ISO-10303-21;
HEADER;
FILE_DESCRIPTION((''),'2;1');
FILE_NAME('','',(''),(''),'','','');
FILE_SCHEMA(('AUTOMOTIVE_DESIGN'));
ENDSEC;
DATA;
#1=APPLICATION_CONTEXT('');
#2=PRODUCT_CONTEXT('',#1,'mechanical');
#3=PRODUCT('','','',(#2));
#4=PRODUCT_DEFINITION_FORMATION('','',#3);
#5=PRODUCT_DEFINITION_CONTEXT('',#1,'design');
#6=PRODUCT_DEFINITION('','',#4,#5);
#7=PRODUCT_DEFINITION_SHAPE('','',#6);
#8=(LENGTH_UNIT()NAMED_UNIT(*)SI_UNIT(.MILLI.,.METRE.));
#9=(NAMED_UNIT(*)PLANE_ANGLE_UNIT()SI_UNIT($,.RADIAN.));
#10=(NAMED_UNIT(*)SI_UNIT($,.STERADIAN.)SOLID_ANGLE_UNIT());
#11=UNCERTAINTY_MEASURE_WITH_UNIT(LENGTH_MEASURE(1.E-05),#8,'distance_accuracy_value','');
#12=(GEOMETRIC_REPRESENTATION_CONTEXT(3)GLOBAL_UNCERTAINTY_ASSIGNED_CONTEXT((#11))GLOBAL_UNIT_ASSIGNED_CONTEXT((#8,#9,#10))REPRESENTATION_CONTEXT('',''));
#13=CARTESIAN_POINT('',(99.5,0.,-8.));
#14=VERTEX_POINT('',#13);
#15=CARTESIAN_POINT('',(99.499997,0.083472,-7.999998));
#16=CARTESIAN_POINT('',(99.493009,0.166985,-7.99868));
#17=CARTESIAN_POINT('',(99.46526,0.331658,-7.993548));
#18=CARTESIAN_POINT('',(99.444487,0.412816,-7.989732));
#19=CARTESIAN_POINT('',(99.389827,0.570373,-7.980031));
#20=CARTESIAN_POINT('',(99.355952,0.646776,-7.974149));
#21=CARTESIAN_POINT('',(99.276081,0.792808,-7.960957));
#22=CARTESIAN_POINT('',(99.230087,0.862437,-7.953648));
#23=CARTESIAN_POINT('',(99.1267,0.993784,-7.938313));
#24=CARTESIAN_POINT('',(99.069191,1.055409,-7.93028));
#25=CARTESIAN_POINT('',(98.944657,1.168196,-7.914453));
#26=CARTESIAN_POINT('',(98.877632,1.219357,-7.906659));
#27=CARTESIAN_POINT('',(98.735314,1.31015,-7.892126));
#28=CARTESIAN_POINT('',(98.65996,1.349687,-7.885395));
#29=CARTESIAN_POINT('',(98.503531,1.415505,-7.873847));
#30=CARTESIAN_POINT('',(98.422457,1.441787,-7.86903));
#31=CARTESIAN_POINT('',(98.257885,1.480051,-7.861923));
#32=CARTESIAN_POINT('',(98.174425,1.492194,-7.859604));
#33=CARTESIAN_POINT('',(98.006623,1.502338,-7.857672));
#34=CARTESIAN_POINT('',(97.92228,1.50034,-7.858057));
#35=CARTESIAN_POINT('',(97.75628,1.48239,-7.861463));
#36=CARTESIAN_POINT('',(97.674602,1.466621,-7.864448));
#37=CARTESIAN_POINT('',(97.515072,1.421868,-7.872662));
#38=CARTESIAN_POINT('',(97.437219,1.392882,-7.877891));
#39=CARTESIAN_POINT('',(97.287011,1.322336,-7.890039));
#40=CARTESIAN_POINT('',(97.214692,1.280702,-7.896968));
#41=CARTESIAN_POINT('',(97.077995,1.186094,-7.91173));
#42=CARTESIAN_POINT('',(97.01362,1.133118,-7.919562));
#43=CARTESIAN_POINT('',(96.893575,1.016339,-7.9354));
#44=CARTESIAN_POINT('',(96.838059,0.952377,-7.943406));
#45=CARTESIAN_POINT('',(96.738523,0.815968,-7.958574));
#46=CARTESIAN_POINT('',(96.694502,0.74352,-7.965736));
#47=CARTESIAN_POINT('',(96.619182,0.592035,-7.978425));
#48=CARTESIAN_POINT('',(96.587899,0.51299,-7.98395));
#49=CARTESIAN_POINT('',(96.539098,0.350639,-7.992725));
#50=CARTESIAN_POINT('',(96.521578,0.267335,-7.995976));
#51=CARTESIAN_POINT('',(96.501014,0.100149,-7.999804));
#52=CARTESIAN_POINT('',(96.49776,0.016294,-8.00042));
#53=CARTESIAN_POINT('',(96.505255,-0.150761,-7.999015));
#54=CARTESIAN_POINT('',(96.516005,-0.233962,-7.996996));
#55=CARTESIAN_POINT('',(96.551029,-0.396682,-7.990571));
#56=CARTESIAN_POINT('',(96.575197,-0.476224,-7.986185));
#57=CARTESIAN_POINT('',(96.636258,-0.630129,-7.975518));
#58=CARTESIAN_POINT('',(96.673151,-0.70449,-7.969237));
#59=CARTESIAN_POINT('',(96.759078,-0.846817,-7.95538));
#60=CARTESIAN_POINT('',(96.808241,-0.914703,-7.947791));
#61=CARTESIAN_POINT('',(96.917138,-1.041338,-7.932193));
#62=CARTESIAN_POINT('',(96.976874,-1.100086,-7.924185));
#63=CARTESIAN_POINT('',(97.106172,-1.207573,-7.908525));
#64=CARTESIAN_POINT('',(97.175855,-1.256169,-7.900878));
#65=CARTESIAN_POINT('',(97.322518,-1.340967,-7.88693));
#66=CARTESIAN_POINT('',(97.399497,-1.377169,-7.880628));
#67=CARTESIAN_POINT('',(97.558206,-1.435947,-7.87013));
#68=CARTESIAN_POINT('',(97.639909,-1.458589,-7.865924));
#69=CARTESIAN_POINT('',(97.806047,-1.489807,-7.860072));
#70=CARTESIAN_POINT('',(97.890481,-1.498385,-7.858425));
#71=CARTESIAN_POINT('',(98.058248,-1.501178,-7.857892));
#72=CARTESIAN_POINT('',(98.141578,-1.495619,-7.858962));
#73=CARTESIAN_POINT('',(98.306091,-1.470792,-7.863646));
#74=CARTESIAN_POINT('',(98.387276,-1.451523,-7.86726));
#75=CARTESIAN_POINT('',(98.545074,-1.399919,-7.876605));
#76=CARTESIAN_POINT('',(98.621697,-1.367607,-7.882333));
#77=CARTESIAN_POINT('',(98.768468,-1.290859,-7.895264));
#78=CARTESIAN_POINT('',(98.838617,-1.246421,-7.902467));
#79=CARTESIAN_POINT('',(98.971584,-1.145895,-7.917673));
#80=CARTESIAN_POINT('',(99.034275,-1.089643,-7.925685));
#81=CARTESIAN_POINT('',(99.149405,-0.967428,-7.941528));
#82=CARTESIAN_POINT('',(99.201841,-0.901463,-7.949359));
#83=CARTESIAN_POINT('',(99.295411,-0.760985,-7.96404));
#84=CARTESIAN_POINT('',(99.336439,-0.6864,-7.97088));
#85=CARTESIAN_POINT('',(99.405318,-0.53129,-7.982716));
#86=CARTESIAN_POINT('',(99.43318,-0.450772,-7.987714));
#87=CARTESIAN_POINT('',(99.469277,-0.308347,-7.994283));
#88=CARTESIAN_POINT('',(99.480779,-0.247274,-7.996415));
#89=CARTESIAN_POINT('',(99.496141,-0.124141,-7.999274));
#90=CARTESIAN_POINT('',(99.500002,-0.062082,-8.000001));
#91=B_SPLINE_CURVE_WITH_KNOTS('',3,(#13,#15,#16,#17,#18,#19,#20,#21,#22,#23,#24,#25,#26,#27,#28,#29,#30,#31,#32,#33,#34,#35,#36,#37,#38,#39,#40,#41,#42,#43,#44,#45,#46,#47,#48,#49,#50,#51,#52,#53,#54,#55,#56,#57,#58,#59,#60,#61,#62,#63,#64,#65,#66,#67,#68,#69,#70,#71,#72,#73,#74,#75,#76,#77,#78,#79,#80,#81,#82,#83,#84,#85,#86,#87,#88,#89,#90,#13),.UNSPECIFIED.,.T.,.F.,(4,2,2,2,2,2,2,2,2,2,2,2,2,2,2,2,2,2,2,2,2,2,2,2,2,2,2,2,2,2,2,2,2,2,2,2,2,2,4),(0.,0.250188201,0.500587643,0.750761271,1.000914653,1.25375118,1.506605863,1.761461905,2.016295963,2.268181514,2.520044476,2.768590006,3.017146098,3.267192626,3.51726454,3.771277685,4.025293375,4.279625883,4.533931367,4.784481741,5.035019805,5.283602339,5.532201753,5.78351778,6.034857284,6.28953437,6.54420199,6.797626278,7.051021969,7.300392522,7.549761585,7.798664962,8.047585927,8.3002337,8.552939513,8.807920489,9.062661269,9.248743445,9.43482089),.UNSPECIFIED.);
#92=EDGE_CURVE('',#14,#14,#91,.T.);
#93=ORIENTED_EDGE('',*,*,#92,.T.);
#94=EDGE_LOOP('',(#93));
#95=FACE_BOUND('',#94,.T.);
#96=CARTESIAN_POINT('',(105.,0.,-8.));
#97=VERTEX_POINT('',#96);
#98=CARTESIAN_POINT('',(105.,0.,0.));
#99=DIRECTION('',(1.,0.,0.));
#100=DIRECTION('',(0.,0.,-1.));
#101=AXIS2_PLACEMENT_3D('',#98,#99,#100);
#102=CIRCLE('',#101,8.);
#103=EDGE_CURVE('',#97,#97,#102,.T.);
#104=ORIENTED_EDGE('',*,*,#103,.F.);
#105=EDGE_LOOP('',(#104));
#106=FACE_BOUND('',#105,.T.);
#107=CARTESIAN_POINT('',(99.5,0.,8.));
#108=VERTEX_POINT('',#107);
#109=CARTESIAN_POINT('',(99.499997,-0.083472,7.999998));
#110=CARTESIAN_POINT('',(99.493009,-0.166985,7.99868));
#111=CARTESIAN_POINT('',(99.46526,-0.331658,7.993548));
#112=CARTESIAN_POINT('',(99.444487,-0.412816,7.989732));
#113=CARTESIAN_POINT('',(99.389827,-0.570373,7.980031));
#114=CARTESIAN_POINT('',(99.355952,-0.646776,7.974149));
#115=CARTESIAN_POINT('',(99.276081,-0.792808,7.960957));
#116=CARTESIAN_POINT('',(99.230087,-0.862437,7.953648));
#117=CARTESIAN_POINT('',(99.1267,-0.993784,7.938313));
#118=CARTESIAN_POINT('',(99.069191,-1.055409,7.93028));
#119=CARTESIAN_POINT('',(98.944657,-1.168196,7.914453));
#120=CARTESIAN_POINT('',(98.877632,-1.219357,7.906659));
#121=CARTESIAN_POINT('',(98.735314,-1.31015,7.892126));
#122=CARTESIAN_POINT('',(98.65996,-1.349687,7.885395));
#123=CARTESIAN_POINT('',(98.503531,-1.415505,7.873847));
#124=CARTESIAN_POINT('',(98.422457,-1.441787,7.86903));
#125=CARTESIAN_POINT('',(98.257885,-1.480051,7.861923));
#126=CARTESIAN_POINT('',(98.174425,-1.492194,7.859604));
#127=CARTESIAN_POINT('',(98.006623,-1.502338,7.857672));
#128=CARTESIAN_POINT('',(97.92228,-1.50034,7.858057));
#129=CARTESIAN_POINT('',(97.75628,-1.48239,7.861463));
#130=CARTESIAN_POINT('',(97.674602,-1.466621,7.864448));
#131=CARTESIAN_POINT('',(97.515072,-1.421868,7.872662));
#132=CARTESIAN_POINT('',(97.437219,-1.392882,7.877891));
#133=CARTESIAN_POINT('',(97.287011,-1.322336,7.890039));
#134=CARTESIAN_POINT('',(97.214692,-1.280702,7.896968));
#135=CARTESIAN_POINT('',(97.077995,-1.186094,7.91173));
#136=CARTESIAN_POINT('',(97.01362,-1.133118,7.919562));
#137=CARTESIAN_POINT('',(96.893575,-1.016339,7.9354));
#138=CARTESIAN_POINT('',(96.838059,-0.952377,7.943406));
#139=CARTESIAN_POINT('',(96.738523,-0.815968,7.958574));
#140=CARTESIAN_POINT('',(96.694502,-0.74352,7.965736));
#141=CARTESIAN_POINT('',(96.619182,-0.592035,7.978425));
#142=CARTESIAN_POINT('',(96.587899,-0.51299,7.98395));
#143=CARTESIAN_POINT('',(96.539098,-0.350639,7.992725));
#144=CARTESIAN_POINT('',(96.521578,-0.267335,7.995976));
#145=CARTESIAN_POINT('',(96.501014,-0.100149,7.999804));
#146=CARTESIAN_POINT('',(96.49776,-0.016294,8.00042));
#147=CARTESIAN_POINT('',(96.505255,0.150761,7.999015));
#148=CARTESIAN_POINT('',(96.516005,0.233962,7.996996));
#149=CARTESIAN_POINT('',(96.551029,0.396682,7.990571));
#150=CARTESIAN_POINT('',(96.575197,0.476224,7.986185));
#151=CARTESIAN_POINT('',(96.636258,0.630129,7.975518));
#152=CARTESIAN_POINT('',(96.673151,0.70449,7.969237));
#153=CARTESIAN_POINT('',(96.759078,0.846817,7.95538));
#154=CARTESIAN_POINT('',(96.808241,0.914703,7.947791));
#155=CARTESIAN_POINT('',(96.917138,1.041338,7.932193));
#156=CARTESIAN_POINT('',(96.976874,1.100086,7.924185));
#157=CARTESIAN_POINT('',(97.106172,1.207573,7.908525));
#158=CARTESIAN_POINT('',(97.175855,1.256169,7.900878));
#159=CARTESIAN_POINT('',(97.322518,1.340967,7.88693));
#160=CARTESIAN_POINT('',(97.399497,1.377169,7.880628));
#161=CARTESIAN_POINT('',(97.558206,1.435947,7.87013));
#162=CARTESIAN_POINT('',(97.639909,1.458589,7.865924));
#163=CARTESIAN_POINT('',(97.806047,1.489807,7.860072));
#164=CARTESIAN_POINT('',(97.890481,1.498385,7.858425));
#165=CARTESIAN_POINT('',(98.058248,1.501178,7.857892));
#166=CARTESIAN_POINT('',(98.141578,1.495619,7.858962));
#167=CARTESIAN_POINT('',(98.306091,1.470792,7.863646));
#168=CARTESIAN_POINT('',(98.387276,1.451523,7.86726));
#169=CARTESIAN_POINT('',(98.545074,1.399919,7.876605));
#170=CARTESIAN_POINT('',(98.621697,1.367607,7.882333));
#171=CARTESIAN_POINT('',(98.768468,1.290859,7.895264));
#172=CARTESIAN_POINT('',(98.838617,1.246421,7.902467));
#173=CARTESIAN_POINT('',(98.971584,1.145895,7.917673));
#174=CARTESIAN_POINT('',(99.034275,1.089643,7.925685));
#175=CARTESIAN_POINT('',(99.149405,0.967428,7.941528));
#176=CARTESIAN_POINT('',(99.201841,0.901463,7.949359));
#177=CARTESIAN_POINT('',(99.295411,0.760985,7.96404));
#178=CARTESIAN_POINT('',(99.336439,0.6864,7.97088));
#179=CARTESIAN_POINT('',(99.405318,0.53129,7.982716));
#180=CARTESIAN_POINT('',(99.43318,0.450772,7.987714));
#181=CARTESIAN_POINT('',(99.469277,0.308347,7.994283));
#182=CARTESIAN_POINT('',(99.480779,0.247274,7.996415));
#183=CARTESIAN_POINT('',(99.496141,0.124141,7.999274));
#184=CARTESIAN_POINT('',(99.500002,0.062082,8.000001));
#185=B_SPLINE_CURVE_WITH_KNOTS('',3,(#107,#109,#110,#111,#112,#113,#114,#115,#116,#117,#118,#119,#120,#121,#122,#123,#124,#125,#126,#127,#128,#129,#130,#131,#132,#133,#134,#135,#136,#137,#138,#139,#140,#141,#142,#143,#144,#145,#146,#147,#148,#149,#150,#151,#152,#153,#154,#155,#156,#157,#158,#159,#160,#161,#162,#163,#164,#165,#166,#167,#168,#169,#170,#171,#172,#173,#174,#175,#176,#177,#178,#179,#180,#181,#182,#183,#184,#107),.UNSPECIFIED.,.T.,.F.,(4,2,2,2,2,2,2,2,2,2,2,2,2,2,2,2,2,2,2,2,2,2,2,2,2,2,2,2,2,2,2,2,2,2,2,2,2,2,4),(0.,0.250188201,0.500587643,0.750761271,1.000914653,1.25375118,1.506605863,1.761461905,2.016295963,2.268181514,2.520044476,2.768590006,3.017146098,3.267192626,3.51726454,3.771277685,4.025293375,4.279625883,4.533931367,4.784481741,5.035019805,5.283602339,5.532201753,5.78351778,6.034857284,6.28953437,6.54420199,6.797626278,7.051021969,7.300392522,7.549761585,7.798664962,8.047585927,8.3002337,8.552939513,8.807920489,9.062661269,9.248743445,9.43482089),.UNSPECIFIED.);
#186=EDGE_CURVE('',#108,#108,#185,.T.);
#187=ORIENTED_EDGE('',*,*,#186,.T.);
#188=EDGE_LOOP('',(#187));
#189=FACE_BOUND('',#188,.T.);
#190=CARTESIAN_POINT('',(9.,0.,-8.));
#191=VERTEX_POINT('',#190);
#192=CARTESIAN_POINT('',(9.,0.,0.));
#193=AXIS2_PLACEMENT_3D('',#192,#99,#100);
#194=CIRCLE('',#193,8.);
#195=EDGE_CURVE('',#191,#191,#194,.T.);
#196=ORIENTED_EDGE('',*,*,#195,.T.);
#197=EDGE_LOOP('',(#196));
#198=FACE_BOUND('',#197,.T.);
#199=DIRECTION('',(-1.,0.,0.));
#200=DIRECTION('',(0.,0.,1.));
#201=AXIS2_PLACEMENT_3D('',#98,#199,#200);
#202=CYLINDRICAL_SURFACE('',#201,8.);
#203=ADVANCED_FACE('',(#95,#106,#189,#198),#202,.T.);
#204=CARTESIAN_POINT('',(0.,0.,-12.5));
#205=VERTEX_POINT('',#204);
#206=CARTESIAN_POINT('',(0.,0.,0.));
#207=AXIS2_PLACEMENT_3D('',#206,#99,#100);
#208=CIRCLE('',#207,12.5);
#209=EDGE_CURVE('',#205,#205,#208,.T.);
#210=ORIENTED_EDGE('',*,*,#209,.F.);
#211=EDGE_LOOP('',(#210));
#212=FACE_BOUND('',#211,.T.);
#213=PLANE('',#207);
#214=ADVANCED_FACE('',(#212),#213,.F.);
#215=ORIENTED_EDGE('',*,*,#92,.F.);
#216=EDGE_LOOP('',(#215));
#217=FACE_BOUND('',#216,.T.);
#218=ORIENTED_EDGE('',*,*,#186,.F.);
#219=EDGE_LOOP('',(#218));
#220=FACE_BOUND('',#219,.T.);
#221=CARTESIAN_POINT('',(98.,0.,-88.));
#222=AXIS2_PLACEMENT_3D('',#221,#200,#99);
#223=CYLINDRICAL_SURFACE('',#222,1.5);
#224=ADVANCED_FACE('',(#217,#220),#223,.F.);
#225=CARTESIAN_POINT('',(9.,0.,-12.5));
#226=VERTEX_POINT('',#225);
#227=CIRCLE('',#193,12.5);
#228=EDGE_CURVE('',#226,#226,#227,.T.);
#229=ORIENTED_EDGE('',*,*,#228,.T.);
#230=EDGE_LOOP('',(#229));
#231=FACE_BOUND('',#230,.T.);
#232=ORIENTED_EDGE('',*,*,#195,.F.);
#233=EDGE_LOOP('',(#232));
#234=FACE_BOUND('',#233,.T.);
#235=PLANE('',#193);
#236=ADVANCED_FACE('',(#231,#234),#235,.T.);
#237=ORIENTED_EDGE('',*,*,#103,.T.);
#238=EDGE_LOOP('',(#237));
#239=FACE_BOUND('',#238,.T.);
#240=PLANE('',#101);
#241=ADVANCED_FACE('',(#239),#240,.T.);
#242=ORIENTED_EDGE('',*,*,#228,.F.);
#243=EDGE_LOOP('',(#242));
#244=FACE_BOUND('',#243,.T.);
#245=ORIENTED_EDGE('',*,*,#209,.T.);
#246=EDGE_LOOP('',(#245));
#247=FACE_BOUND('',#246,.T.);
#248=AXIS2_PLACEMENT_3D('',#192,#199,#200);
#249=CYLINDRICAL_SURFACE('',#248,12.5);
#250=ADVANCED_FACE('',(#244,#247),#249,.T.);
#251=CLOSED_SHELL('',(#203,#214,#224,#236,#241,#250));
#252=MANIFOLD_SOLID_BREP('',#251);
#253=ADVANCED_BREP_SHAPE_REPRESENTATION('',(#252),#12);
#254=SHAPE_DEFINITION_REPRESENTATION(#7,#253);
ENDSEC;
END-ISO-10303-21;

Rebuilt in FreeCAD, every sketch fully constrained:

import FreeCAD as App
import Part
import Sketcher
from FreeCAD import Vector
Q = App.Units.Quantity

doc = App.newDocument("Part")
body = doc.addObject("PartDesign::Body", "Body")

# Sketch on YZ plane
sketch1 = doc.addObject("Sketcher::SketchObject", "Sketch")
body.addObject(sketch1)
sketch1.AttachmentSupport = (doc.YZ_Plane, [""])
sketch1.MapMode = "FlatFace"
sketch1.addGeometry(Part.Circle(Vector(0, 0, 0), Vector(0, 0, 1), 12), False)
sketch1.addConstraint([
    Sketcher.Constraint("Coincident", 0, 3, -1, 1),
    Sketcher.Constraint("Diameter", 0, Q("25 mm")),
])
pad1 = doc.addObject("PartDesign::Pad", "Pad")
body.addObject(pad1)
pad1.Profile = sketch1
pad1.Length = 9

# Sketch on YZ plane
sketch2 = doc.addObject("Sketcher::SketchObject", "Sketch001")
body.addObject(sketch2)
sketch2.AttachmentSupport = (doc.YZ_Plane, [""])
sketch2.MapMode = "FlatFace"
sketch2.AttachmentOffset = App.Placement(Vector(0, 0, 9), App.Rotation())
sketch2.addGeometry(Part.Circle(Vector(0, 0, 0), Vector(0, 0, 1), 8), False)
sketch2.addConstraint([
    Sketcher.Constraint("Coincident", 0, 3, -1, 1),
    Sketcher.Constraint("Diameter", 0, Q("16 mm")),
])
pad2 = doc.addObject("PartDesign::Pad", "Pad001")
body.addObject(pad2)
pad2.Profile = sketch2
pad2.Length = 96

# Sketch on XY plane
sketch3 = doc.addObject("Sketcher::SketchObject", "Sketch002")
body.addObject(sketch3)
sketch3.AttachmentSupport = (doc.XY_Plane, [""])
sketch3.MapMode = "FlatFace"
sketch3.AttachmentOffset = App.Placement(Vector(0, 0, 8), App.Rotation())
sketch3.addGeometry(Part.Circle(Vector(98, 0, 0), Vector(0, 0, 1), 1.5), False)
sketch3.addConstraint([
    Sketcher.Constraint("PointOnObject", 0, 3, -1),
    Sketcher.Constraint("Diameter", 0, Q("3 mm")),
    Sketcher.Constraint("DistanceX", -1, 1, 0, 3, Q("98 mm")),
])
pocket1 = doc.addObject("PartDesign::Pocket", "Pocket")
body.addObject(pocket1)
pocket1.Profile = sketch3
pocket1.Length = 96

doc.recompute()
